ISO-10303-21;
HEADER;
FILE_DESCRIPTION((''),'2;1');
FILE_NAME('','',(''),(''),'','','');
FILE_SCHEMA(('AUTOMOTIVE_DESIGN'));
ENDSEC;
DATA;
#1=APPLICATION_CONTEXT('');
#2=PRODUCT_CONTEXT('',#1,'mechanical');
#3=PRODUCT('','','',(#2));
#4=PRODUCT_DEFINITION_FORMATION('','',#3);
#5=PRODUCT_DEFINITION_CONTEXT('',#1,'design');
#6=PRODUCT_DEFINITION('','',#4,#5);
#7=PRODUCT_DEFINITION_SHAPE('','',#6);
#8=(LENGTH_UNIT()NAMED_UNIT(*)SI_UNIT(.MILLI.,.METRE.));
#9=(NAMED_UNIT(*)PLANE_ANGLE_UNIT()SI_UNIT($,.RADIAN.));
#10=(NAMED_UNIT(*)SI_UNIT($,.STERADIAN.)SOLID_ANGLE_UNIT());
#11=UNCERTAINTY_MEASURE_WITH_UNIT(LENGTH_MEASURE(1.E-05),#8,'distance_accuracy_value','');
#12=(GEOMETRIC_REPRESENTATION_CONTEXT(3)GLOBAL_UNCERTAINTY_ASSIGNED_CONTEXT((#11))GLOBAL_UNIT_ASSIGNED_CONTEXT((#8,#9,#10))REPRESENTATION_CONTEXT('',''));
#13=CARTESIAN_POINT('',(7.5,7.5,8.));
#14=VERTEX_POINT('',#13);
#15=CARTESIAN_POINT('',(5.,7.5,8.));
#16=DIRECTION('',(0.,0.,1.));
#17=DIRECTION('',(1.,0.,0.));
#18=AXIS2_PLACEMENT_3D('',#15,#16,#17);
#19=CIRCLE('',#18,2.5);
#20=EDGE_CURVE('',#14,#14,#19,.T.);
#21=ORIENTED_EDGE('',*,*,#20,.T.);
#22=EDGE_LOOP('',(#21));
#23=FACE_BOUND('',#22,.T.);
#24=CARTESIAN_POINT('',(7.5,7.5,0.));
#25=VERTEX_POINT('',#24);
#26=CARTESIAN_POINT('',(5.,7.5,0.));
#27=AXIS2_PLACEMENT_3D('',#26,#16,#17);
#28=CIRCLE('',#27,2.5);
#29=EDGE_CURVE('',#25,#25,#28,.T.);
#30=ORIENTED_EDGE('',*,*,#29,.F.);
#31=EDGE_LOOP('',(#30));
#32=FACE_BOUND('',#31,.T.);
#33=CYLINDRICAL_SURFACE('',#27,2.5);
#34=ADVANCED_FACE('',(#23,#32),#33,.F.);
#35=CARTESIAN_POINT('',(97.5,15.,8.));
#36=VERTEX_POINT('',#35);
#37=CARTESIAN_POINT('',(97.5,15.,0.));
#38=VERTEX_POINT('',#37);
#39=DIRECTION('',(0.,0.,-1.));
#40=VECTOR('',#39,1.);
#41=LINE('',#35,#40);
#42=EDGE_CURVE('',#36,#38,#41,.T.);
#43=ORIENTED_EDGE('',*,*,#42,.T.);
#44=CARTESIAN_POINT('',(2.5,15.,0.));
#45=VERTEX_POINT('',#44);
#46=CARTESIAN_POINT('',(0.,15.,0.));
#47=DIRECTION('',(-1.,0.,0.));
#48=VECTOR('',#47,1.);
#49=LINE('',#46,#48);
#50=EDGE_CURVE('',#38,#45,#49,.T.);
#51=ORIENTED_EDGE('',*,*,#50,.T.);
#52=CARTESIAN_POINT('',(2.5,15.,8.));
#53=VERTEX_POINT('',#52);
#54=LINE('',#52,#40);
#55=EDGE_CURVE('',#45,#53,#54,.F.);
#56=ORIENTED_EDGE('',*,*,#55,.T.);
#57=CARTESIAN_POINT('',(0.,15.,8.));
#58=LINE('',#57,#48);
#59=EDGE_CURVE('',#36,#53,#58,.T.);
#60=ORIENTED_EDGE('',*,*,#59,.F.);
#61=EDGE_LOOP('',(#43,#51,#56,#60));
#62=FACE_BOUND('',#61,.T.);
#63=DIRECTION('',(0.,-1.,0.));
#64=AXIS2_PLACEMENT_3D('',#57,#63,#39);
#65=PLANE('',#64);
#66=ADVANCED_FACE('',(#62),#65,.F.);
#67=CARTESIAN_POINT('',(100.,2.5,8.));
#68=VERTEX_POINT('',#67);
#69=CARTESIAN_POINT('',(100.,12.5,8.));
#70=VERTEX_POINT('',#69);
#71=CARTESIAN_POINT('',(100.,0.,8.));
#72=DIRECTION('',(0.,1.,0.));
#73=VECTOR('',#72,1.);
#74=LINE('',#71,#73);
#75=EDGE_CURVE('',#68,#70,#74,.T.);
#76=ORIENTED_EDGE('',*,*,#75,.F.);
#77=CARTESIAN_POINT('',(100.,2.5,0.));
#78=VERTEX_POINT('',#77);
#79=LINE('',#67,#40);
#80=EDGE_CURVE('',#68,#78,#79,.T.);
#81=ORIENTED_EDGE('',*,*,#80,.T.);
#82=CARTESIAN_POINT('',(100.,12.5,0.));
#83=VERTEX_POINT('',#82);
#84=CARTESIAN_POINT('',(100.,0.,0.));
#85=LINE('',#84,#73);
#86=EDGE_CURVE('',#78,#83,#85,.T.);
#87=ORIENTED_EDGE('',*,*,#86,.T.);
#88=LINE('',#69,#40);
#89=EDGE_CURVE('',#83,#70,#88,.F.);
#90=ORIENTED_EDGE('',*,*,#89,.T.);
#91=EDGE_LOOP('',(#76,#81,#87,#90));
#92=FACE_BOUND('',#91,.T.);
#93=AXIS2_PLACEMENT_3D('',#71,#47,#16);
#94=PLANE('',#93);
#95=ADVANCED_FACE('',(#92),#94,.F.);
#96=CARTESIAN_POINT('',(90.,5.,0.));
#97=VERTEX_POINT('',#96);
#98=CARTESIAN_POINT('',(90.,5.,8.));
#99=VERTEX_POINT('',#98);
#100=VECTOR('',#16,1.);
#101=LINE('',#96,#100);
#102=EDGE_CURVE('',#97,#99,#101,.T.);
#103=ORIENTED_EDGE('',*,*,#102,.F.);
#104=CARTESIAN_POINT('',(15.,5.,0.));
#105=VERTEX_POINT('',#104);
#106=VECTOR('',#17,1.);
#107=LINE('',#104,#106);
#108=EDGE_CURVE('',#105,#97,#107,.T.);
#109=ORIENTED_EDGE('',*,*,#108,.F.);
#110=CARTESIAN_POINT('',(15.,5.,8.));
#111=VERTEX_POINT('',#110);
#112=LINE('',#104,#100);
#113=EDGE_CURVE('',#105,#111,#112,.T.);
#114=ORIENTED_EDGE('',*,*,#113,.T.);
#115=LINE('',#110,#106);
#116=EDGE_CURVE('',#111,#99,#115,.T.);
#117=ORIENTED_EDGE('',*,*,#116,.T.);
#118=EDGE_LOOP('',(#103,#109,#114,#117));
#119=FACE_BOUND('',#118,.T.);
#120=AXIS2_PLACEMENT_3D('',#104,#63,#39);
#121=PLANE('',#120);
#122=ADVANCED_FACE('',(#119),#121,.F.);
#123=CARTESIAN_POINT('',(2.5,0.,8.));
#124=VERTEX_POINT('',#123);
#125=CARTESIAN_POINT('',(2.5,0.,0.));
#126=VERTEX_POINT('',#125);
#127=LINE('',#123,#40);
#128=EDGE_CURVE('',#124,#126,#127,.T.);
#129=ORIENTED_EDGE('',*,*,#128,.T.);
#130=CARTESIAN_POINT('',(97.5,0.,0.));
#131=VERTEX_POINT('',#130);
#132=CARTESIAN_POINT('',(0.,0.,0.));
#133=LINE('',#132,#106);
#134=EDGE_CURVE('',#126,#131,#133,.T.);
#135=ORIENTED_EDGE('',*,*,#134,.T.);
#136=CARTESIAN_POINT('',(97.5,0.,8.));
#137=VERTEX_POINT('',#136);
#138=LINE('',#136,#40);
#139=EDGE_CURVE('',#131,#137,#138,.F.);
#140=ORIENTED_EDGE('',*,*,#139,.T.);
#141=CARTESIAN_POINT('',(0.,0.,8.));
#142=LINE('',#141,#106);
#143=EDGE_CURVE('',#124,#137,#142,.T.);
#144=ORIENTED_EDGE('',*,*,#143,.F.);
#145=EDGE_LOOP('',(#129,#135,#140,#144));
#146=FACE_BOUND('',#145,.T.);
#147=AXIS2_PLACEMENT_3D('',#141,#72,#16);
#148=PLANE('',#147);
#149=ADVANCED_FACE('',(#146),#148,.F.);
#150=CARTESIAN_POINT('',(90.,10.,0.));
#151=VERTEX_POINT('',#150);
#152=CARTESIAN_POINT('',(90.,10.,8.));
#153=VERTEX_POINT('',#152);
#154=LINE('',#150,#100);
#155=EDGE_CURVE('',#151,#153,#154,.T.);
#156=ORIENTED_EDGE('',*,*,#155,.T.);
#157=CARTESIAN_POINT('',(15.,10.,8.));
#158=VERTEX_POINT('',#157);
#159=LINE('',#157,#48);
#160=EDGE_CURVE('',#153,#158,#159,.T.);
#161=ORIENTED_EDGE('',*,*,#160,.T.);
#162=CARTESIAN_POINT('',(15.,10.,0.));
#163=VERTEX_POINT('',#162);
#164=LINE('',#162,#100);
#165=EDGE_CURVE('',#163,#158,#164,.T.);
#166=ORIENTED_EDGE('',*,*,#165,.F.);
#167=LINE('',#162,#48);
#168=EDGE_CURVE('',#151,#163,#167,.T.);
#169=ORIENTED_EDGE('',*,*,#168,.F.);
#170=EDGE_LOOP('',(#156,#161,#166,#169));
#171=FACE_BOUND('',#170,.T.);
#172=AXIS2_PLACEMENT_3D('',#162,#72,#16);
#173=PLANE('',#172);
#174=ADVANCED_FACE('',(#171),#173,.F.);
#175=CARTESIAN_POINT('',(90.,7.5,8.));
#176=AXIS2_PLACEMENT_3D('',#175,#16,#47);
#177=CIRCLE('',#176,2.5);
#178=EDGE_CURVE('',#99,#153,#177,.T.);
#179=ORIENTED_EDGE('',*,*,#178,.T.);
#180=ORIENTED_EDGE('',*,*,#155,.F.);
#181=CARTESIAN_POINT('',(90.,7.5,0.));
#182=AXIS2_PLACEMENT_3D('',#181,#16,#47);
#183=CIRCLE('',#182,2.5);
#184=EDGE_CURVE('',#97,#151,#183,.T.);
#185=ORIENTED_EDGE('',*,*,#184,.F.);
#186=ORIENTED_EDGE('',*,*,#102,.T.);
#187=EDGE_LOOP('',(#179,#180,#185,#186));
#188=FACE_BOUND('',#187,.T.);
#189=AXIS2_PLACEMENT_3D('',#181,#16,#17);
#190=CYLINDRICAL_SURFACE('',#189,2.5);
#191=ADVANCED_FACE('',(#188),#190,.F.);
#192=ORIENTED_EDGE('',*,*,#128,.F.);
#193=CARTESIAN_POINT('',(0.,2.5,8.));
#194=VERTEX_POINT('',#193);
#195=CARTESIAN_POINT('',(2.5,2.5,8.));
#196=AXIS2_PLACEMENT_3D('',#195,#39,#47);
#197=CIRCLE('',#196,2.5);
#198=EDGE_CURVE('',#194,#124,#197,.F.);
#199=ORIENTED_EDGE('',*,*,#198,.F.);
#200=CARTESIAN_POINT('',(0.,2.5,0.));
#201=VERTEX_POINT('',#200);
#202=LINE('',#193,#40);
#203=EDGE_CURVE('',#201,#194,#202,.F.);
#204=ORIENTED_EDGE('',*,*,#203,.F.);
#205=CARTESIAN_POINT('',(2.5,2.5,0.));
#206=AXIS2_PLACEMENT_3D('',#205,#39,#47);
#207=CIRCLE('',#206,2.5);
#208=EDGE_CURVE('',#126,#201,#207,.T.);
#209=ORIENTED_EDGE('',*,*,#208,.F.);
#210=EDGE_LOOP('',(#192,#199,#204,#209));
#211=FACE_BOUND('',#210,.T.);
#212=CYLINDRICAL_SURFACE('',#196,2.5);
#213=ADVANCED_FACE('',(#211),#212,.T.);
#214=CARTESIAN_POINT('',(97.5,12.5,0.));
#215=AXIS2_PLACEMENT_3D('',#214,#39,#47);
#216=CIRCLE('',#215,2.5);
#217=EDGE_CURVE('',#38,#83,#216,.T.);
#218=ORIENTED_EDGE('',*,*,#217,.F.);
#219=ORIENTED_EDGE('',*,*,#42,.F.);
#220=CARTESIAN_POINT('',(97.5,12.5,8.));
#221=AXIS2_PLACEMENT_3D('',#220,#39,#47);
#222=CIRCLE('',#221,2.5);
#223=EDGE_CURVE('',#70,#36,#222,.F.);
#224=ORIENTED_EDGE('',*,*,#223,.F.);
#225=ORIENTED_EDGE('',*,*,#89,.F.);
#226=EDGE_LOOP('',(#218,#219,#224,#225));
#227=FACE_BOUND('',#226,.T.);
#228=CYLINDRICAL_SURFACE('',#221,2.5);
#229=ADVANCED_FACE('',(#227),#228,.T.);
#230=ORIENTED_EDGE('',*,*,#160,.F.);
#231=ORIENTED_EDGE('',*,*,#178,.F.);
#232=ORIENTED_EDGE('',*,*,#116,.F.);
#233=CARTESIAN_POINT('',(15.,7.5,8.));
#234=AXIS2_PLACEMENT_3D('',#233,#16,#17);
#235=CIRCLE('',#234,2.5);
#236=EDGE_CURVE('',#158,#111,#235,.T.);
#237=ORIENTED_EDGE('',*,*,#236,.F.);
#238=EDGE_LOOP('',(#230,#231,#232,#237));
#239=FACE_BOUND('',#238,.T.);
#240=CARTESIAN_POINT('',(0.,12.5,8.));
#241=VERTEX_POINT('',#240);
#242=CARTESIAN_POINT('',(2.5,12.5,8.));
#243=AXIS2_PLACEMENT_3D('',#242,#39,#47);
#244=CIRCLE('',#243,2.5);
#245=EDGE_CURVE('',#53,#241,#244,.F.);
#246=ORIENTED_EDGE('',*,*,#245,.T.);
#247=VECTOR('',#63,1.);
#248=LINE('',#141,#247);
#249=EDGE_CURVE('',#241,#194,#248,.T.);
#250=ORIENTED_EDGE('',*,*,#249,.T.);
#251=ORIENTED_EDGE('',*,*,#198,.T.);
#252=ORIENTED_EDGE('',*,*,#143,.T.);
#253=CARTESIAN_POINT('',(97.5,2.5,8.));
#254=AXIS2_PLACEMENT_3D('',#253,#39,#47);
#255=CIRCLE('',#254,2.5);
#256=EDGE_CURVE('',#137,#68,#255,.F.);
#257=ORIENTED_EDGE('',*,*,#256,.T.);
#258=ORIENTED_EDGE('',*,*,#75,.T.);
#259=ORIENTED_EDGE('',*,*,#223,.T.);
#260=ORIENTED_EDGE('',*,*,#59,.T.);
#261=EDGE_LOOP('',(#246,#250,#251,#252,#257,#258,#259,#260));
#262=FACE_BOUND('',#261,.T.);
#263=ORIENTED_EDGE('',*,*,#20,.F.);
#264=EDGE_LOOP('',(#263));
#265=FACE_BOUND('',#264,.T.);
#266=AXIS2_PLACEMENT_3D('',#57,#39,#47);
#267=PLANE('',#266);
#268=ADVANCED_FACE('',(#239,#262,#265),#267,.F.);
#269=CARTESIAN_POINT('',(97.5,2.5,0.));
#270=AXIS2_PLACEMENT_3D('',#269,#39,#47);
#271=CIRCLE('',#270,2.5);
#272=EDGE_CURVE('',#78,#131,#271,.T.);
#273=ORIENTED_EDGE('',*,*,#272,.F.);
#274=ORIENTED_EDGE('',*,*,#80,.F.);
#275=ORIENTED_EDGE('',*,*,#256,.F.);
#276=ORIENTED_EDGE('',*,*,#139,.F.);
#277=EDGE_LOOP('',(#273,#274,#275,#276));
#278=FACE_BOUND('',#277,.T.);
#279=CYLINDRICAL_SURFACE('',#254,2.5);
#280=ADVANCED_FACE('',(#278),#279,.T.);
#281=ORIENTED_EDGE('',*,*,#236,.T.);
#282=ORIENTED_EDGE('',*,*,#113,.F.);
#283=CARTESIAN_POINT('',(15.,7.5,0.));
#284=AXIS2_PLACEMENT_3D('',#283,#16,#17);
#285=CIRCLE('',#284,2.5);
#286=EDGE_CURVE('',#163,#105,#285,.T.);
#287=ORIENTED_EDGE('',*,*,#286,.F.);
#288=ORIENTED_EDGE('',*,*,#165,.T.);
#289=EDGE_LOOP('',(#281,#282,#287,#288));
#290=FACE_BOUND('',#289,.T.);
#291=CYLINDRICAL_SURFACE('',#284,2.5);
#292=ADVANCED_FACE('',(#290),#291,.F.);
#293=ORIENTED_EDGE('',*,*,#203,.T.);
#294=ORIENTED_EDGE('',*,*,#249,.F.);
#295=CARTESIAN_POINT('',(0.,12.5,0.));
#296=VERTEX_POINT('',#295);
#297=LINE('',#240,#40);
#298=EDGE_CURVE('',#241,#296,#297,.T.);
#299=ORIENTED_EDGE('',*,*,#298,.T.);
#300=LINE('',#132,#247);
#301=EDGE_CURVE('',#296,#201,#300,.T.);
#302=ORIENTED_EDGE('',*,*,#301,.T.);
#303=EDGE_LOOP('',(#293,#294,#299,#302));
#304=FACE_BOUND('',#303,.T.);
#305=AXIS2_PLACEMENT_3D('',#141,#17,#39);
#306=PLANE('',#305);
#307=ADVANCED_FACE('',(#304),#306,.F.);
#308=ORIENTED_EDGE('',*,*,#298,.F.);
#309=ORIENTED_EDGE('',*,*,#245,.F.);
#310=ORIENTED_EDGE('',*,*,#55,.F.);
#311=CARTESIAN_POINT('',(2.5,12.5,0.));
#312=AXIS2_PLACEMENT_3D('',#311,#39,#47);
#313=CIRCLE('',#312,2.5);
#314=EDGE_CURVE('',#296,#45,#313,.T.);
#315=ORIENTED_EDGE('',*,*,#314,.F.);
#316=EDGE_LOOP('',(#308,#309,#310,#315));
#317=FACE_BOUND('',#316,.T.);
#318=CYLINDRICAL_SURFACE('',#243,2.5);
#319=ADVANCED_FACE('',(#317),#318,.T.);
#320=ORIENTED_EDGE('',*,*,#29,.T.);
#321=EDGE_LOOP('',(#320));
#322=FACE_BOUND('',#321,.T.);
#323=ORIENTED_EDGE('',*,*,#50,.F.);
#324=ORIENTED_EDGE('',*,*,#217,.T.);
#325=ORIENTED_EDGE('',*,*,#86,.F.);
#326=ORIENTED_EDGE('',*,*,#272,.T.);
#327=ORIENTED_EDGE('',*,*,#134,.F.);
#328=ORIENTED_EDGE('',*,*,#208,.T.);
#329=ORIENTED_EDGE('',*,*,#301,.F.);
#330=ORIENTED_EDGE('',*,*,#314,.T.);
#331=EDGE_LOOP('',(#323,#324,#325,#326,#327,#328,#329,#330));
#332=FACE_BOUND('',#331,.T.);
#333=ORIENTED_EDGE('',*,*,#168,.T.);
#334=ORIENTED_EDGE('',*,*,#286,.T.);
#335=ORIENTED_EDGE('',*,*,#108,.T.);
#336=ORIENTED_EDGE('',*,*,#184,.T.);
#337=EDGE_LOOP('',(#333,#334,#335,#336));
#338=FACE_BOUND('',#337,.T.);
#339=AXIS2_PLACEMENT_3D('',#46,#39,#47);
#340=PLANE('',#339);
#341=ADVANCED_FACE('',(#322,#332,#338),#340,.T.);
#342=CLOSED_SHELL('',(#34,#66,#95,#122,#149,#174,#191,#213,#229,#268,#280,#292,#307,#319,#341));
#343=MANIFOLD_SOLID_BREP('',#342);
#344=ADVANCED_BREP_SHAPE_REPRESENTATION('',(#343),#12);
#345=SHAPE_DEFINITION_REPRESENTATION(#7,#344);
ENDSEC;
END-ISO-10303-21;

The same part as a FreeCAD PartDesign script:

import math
import FreeCAD as App
import Part
import Sketcher


def edges_at(feature, points):
    """Names of the edges that pass closest to the given points."""
    edges = feature.Shape.Edges
    near = lambda p: min(range(len(edges)), key=lambda i: edges[i].distToShape(Part.Vertex(*p))[0])
    return sorted({f"Edge{near(p) + 1}" for p in points})

doc = App.newDocument("Part")
body = doc.addObject("PartDesign::Body", "Body")

sketch1 = body.newObject("Sketcher::SketchObject", "Sketch")
sketch1.AttachmentSupport = (doc.getObject("XY_Plane"), [""])
sketch1.MapMode = "FlatFace"
sketch1.addGeometry([
    Part.LineSegment(App.Vector(0, 15, 0), App.Vector(0, 0, 0)),
    Part.LineSegment(App.Vector(0, 0, 0), App.Vector(100, 0, 0)),
    Part.LineSegment(App.Vector(100, 0, 0), App.Vector(100, 15, 0)),
    Part.LineSegment(App.Vector(100, 15, 0), App.Vector(0, 15, 0)),
], False)
sketch1.addConstraint([
    Sketcher.Constraint("Coincident", 0, 2, 1, 1),
    Sketcher.Constraint("Coincident", 1, 2, 2, 1),
    Sketcher.Constraint("Coincident", 2, 2, 3, 1),
    Sketcher.Constraint("Coincident", 3, 2, 0, 1),
    Sketcher.Constraint("Vertical", 0),
    Sketcher.Constraint("Horizontal", 1),
    Sketcher.Constraint("Vertical", 2),
    Sketcher.Constraint("Horizontal", 3),
    Sketcher.Constraint("Coincident", 0, 2, -1, 1),
    Sketcher.Constraint("DistanceX", 1, 1, 1, 2, 100.0),
    Sketcher.Constraint("DistanceY", 0, 2, 0, 1, 15.0),
])
pad1 = body.newObject("PartDesign::Pad", "Pad")
pad1.Profile = sketch1
pad1.Length = 8

sketch2 = body.newObject("Sketcher::SketchObject", "Sketch001")
sketch2.AttachmentSupport = (doc.getObject("XY_Plane"), [""])
sketch2.MapMode = "FlatFace"
sketch2.AttachmentOffset = App.Placement(App.Vector(0, 0, 8), App.Rotation())
sketch2.addGeometry([
    Part.Circle(App.Vector(5, 7.5, 0), App.Vector(0, 0, 1), 2.5),
    Part.LineSegment(App.Vector(90, 10, 0), App.Vector(15, 10, 0)),
    Part.ArcOfCircle(Part.Circle(App.Vector(15, 7.5, 0), App.Vector(0, 0, 1), 2.5), math.radians(90), math.radians(270)),
    Part.LineSegment(App.Vector(15, 5, 0), App.Vector(90, 5, 0)),
    Part.ArcOfCircle(Part.Circle(App.Vector(90, 7.5, 0), App.Vector(0, 0, 1), 2.5), math.radians(-90), math.radians(90)),
], False)
sketch2.addConstraint([
    Sketcher.Constraint("Tangent", 1, 2, 2, 1),
    Sketcher.Constraint("Tangent", 2, 2, 3, 1),
    Sketcher.Constraint("Tangent", 3, 2, 4, 1),
    Sketcher.Constraint("Tangent", 4, 2, 1, 1),
    Sketcher.Constraint("Horizontal", 1),
    Sketcher.Constraint("Horizontal", 3),
    Sketcher.Constraint("Equal", 0, 2),
    Sketcher.Constraint("Horizontal", 0, 3, 2, 3),
    Sketcher.Constraint("Diameter", 0, 5.0),
    Sketcher.Constraint("DistanceX", 1, 2, 1, 1, 75.0),
    Sketcher.Constraint("DistanceX", -1, 1, 0, 3, 5.0),
    Sketcher.Constraint("DistanceX", -1, 1, 2, 3, 15.0),
    Sketcher.Constraint("DistanceY", -1, 1, 1, 2, 10.0),
])
pocket1 = body.newObject("PartDesign::Pocket", "Pocket")
pocket1.Profile = sketch2
pocket1.Length = 8
doc.recompute()

fillet = body.newObject("PartDesign::Fillet", "Fillet")
fillet.Base = (pocket1, edges_at(pocket1, [
    (0, 15, 4),
    (100, 15, 4),
    (100, 0, 4),
    (0, 0, 4),
]))
fillet.Radius = 2.5

doc.recompute()
